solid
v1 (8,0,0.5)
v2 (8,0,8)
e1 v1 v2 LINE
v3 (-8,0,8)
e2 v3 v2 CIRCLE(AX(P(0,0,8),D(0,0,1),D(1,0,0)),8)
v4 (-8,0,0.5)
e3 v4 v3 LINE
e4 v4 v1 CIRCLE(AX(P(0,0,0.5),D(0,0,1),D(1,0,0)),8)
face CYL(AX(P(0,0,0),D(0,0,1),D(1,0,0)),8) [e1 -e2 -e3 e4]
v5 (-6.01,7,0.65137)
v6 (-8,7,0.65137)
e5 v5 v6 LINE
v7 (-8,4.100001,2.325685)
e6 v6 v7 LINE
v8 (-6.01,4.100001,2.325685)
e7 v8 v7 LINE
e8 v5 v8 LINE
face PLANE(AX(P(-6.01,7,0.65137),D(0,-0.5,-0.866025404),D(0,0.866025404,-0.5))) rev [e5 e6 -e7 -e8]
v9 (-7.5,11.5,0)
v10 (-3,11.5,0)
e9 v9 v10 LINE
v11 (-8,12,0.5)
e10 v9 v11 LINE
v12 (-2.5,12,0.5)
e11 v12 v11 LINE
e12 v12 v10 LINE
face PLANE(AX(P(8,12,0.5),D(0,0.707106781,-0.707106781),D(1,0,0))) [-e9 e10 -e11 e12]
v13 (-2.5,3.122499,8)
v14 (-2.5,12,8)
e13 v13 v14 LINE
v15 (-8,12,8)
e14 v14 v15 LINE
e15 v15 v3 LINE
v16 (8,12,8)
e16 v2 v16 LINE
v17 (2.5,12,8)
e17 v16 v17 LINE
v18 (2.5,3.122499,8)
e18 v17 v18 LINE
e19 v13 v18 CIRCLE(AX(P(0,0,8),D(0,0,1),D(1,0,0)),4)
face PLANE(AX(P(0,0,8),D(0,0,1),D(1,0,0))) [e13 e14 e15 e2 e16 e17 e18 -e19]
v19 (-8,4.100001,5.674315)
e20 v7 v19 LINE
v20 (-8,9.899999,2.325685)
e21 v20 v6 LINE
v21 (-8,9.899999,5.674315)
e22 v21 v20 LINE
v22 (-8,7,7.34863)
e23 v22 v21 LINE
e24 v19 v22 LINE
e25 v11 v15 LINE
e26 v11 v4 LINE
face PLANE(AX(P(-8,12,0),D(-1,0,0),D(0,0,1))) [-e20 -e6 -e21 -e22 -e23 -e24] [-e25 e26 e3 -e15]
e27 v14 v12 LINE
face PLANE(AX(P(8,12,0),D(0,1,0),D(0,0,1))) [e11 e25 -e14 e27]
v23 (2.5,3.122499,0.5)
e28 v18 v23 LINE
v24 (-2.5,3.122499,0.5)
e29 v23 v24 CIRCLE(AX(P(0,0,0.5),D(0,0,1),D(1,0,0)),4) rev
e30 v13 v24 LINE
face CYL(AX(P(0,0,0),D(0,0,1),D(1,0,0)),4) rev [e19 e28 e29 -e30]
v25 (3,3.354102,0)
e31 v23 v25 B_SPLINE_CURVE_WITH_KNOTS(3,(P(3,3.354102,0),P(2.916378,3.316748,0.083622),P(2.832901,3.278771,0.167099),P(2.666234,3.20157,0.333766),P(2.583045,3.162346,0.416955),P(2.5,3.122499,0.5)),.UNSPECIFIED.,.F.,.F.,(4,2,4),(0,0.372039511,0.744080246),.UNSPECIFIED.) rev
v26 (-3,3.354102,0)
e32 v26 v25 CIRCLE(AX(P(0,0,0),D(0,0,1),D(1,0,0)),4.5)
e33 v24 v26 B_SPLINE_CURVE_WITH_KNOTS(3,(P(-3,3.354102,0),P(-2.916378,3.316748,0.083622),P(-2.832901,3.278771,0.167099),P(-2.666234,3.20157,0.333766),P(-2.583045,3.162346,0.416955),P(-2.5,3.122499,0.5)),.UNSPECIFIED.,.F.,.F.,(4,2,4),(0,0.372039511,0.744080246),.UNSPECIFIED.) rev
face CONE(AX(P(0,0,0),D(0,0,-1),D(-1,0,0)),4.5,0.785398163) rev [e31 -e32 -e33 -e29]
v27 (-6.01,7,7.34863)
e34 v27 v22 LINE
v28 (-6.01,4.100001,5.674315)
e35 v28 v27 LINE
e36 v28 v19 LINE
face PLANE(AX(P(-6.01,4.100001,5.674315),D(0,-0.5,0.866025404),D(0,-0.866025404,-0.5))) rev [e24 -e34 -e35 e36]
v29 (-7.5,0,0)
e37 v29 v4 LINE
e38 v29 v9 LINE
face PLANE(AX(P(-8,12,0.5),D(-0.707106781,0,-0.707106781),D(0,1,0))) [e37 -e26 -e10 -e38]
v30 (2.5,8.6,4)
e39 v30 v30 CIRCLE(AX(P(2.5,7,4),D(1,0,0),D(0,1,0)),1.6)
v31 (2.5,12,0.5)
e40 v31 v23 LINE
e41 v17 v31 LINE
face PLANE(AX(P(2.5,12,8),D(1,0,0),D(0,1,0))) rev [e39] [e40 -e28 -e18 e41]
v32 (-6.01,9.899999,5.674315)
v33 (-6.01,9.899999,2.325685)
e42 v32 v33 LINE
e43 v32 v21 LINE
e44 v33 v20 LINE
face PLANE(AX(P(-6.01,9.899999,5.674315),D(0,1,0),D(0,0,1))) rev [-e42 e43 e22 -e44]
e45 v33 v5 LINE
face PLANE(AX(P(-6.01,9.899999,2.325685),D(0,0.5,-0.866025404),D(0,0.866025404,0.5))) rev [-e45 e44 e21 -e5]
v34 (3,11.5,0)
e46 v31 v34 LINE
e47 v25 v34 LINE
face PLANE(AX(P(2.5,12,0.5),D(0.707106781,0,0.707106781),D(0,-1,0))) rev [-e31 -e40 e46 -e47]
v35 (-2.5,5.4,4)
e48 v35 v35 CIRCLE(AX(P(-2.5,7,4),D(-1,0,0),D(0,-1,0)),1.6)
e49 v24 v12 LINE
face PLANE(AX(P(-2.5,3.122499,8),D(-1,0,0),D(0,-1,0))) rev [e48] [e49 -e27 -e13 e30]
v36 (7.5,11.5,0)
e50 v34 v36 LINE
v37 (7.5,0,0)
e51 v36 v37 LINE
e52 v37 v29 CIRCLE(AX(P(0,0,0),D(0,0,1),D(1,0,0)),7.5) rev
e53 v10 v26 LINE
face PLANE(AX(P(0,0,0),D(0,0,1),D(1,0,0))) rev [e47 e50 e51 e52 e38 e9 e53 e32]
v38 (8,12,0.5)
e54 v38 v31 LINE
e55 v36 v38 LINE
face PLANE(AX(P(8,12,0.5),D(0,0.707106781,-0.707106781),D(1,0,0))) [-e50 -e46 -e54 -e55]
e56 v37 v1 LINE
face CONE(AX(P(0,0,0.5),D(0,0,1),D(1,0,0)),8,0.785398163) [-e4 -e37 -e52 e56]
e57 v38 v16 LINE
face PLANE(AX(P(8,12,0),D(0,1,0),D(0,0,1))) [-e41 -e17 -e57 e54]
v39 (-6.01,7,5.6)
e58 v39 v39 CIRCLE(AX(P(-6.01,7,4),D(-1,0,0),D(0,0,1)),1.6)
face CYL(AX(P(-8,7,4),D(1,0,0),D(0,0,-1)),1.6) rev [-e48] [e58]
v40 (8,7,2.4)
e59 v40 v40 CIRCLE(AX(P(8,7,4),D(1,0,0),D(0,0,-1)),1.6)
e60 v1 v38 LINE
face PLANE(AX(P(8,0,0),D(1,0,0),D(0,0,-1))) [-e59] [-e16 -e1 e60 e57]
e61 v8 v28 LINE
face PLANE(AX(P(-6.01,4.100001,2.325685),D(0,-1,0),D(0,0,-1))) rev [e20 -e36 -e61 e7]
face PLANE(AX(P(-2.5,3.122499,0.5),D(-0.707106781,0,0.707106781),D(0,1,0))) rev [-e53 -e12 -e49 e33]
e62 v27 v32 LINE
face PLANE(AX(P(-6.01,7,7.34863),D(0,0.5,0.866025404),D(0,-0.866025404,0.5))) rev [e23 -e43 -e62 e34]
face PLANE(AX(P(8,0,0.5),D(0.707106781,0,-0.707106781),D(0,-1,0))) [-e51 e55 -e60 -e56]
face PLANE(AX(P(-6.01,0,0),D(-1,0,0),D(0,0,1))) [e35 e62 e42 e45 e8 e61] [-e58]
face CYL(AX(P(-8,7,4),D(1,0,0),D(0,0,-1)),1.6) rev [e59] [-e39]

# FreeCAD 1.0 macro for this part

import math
import FreeCAD as App
import Part
import Sketcher

V = App.Vector
Q = App.Units.Quantity


def edges_at(feature, points):
    """Names of the edges that pass closest to the given points."""
    edges = feature.Shape.Edges
    near = lambda p: min(range(len(edges)), key=lambda i: edges[i].distToShape(Part.Vertex(*p))[0])
    return sorted({f"Edge{near(p) + 1}" for p in points})

doc = App.newDocument("Part")
body = doc.addObject("PartDesign::Body", "Body")

sketch1 = doc.addObject("Sketcher::SketchObject", "Sketch")
body.addObject(sketch1)
sketch1.AttachmentSupport = (doc.XY_Plane, [""])
sketch1.MapMode = "FlatFace"
sketch1.AttachmentOffset = App.Placement(V(0, 0, 8), App.Rotation())
sketch1.addGeometry(Part.LineSegment(V(8, 0, 0), V(8, 12, 0)), False)
sketch1.addGeometry(Part.LineSegment(V(8, 12, 0), V(-8, 12, 0)), False)
sketch1.addGeometry(Part.LineSegment(V(-8, 12, 0), V(-8, 0, 0)), False)
sketch1.addGeometry(Part.ArcOfCircle(Part.Circle(V(0, 0, 0), V(0, 0, 1), 8), math.radians(180), math.radians(360)), False)
sketch1.addConstraint(Sketcher.Constraint("Coincident", 0, 2, 1, 1))
sketch1.addConstraint(Sketcher.Constraint("Coincident", 1, 2, 2, 1))
sketch1.addConstraint(Sketcher.Constraint("Tangent", 2, 2, 3, 1))
sketch1.addConstraint(Sketcher.Constraint("Tangent", 3, 2, 0, 1))
sketch1.addConstraint(Sketcher.Constraint("Vertical", 0))
sketch1.addConstraint(Sketcher.Constraint("Horizontal", 1))
sketch1.addConstraint(Sketcher.Constraint("Vertical", 2))
sketch1.addConstraint(Sketcher.Constraint("Coincident", 3, 3, -1, 1))
sketch1.addConstraint(Sketcher.Constraint("Radius", 3, 8.0))
sketch1.addConstraint(Sketcher.Constraint("DistanceY", 0, 1, 0, 2, 12.0))
pad1 = doc.addObject("PartDesign::Pad", "Pad")
body.addObject(pad1)
pad1.Profile = sketch1
pad1.Length = 8
pad1.Reversed = True

sketch2 = doc.addObject("Sketcher::SketchObject", "Sketch001")
body.addObject(sketch2)
sketch2.AttachmentSupport = (doc.XY_Plane, [""])
sketch2.MapMode = "FlatFace"
sketch2.addGeometry(Part.LineSegment(V(-2.5, 12, 0), V(2.5, 12, 0)), False)
sketch2.addGeometry(Part.LineSegment(V(2.5, 12, 0), V(2.5, 3.122499, 0)), False)
sketch2.addGeometry(Part.ArcOfCircle(Part.Circle(V(0, 0, 0), V(0, 0, 1), 4), math.radians(51.317813), math.radians(128.682187)), False)
sketch2.addGeometry(Part.LineSegment(V(-2.5, 3.122499, 0), V(-2.5, 12, 0)), False)
sketch2.addConstraint(Sketcher.Constraint("Coincident", 0, 2, 1, 1))
sketch2.addConstraint(Sketcher.Constraint("Coincident", 1, 2, 2, 1))
sketch2.addConstraint(Sketcher.Constraint("Coincident", 2, 2, 3, 1))
sketch2.addConstraint(Sketcher.Constraint("Coincident", 3, 2, 0, 1))
sketch2.addConstraint(Sketcher.Constraint("Horizontal", 0))
sketch2.addConstraint(Sketcher.Constraint("Vertical", 1))
sketch2.addConstraint(Sketcher.Constraint("Vertical", 3))
sketch2.addConstraint(Sketcher.Constraint("Coincident", 2, 3, -1, 1))
sketch2.addConstraint(Sketcher.Constraint("Horizontal", 1, 2, 2, 2))
sketch2.addConstraint(Sketcher.Constraint("Radius", 2, 4.0))
sketch2.addConstraint(Sketcher.Constraint("DistanceX", 0, 1, 0, 2, 5.0))
sketch2.addConstraint(Sketcher.Constraint("DistanceY", -1, 1, 0, 2, 12.0))
pocket1 = doc.addObject("PartDesign::Pocket", "Pocket")
body.addObject(pocket1)
pocket1.Profile = sketch2
pocket1.Type = "ThroughAll"
pocket1.Reversed = True

sketch3 = doc.addObject("Sketcher::SketchObject", "Sketch002")
body.addObject(sketch3)
sketch3.AttachmentSupport = (doc.YZ_Plane, [""])
sketch3.MapMode = "FlatFace"
sketch3.AttachmentOffset = App.Placement(V(0, 0, -8), App.Rotation())
sketch3.addGeometry(Part.LineSegment(V(4.100001, 5.674315, 0), V(7, 7.34863, 0)), False)
sketch3.addGeometry(Part.LineSegment(V(7, 7.34863, 0), V(9.899999, 5.674315, 0)), False)
sketch3.addGeometry(Part.LineSegment(V(9.899999, 5.674315, 0), V(9.899999, 2.325685, 0)), False)
sketch3.addGeometry(Part.LineSegment(V(9.899999, 2.325685, 0), V(7, 0.65137, 0)), False)
sketch3.addGeometry(Part.LineSegment(V(7, 0.65137, 0), V(4.100001, 2.325685, 0)), False)
sketch3.addGeometry(Part.LineSegment(V(4.100001, 2.325685, 0), V(4.100001, 5.674315, 0)), False)
sketch3.addConstraint(Sketcher.Constraint("Coincident", 0, 2, 1, 1))
sketch3.addConstraint(Sketcher.Constraint("Coincident", 1, 2, 2, 1))
sketch3.addConstraint(Sketcher.Constraint("Coincident", 2, 2, 3, 1))
sketch3.addConstraint(Sketcher.Constraint("Coincident", 3, 2, 4, 1))
sketch3.addConstraint(Sketcher.Constraint("Coincident", 4, 2, 5, 1))
sketch3.addConstraint(Sketcher.Constraint("Coincident", 5, 2, 0, 1))
sketch3.addConstraint(Sketcher.Constraint("Vertical", 2))
sketch3.addConstraint(Sketcher.Constraint("Vertical", 5))
sketch3.addConstraint(Sketcher.Constraint("Parallel", 0, 3))
sketch3.addConstraint(Sketcher.Constraint("Parallel", 1, 4))
sketch3.addConstraint(Sketcher.Constraint("Horizontal", 2, 2, 4, 2))
sketch3.addConstraint(Sketcher.Constraint("Horizontal", 1, 2, 5, 2))
sketch3.addConstraint(Sketcher.Constraint("Vertical", 0, 2, 3, 2))
sketch3.addConstraint(Sketcher.Constraint("Angle", 0, Q("30 deg")))
sketch3.addConstraint(Sketcher.Constraint("DistanceX", -1, 1, 0, 2, 7.0))
sketch3.addConstraint(Sketcher.Constraint("DistanceX", -1, 1, 1, 2, 9.899999))
sketch3.addConstraint(Sketcher.Constraint("DistanceY", 2, 2, 2, 1, 3.34863))
sketch3.addConstraint(Sketcher.Constraint("DistanceY", -1, 1, 0, 2, 7.34863))
pocket2 = doc.addObject("PartDesign::Pocket", "Pocket001")
body.addObject(pocket2)
pocket2.Profile = sketch3
pocket2.Length = 1.99
pocket2.Reversed = True

sketch4 = doc.addObject("Sketcher::SketchObject", "Sketch003")
body.addObject(sketch4)
sketch4.AttachmentSupport = (doc.YZ_Plane, [""])
sketch4.MapMode = "FlatFace"
sketch4.AttachmentOffset = App.Placement(V(0, 0, 8), App.Rotation())
sketch4.addGeometry(Part.LineSegment(V(6.111088, 5.330351, 0), V(5.868629, 5.131371, 0)), False)
sketch4.addGeometry(Part.LineSegment(V(5.868629, 5.131371, 0), V(5.669649, 4.888912, 0)), False)
sketch4.addGeometry(Part.LineSegment(V(5.669649, 4.888912, 0), V(5.521793, 4.612293, 0)), False)
sketch4.addGeometry(Part.LineSegment(V(5.521793, 4.612293, 0), V(5.430744, 4.312145, 0)), False)
sketch4.addGeometry(Part.LineSegment(V(5.430744, 4.312145, 0), V(5.4, 4, 0)), False)
sketch4.addGeometry(Part.LineSegment(V(5.4, 4, 0), V(5.430744, 3.687855, 0)), False)
sketch4.addGeometry(Part.LineSegment(V(5.430744, 3.687855, 0), V(5.521793, 3.387707, 0)), False)
sketch4.addGeometry(Part.LineSegment(V(5.521793, 3.387707, 0), V(5.669649, 3.111088, 0)), False)
sketch4.addGeometry(Part.LineSegment(V(5.669649, 3.111088, 0), V(5.868629, 2.868629, 0)), False)
sketch4.addGeometry(Part.LineSegment(V(5.868629, 2.868629, 0), V(6.111088, 2.669649, 0)), False)
sketch4.addGeometry(Part.LineSegment(V(6.111088, 2.669649, 0), V(6.387707, 2.521793, 0)), False)
sketch4.addGeometry(Part.LineSegment(V(6.387707, 2.521793, 0), V(6.687855, 2.430744, 0)), False)
sketch4.addGeometry(Part.LineSegment(V(6.687855, 2.430744, 0), V(7, 2.4, 0)), False)
sketch4.addGeometry(Part.LineSegment(V(7, 2.4, 0), V(7.312145, 2.430744, 0)), False)
sketch4.addGeometry(Part.LineSegment(V(7.312145, 2.430744, 0), V(7.612293, 2.521793, 0)), False)
sketch4.addGeometry(Part.LineSegment(V(7.612293, 2.521793, 0), V(7.888912, 2.669649, 0)), False)
sketch4.addGeometry(Part.LineSegment(V(7.888912, 2.669649, 0), V(8.131371, 2.868629, 0)), False)
sketch4.addGeometry(Part.LineSegment(V(8.131371, 2.868629, 0), V(8.330351, 3.111088, 0)), False)
sketch4.addGeometry(Part.LineSegment(V(8.330351, 3.111088, 0), V(8.478207, 3.387707, 0)), False)
sketch4.addGeometry(Part.LineSegment(V(8.478207, 3.387707, 0), V(8.569256, 3.687855, 0)), False)
sketch4.addGeometry(Part.LineSegment(V(8.569256, 3.687855, 0), V(8.6, 4, 0)), False)
sketch4.addGeometry(Part.LineSegment(V(8.6, 4, 0), V(8.569256, 4.312145, 0)), False)
sketch4.addGeometry(Part.LineSegment(V(8.569256, 4.312145, 0), V(8.478207, 4.612293, 0)), False)
sketch4.addGeometry(Part.LineSegment(V(8.478207, 4.612293, 0), V(8.330351, 4.888912, 0)), False)
sketch4.addGeometry(Part.LineSegment(V(8.330351, 4.888912, 0), V(8.131371, 5.131371, 0)), False)
sketch4.addGeometry(Part.LineSegment(V(8.131371, 5.131371, 0), V(7.888912, 5.330351, 0)), False)
sketch4.addGeometry(Part.LineSegment(V(7.888912, 5.330351, 0), V(7.612293, 5.478207, 0)), False)
sketch4.addGeometry(Part.LineSegment(V(7.612293, 5.478207, 0), V(7.312145, 5.569256, 0)), False)
sketch4.addGeometry(Part.LineSegment(V(7.312145, 5.569256, 0), V(7, 5.6, 0)), False)
sketch4.addGeometry(Part.LineSegment(V(7, 5.6, 0), V(6.687855, 5.569256, 0)), False)
sketch4.addGeometry(Part.LineSegment(V(6.687855, 5.569256, 0), V(6.387707, 5.478207, 0)), False)
sketch4.addGeometry(Part.LineSegment(V(6.387707, 5.478207, 0), V(6.111088, 5.330351, 0)), False)
sketch4.addConstraint(Sketcher.Constraint("Coincident", 0, 2, 1, 1))
sketch4.addConstraint(Sketcher.Constraint("Coincident", 1, 2, 2, 1))
sketch4.addConstraint(Sketcher.Constraint("Coincident", 2, 2, 3, 1))
sketch4.addConstraint(Sketcher.Constraint("Coincident", 3, 2, 4, 1))
sketch4.addConstraint(Sketcher.Constraint("Coincident", 4, 2, 5, 1))
sketch4.addConstraint(Sketcher.Constraint("Coincident", 5, 2, 6, 1))
sketch4.addConstraint(Sketcher.Constraint("Coincident", 6, 2, 7, 1))
sketch4.addConstraint(Sketcher.Constraint("Coincident", 7, 2, 8, 1))
sketch4.addConstraint(Sketcher.Constraint("Coincident", 8, 2, 9, 1))
sketch4.addConstraint(Sketcher.Constraint("Coincident", 9, 2, 10, 1))
sketch4.addConstraint(Sketcher.Constraint("Coincident", 10, 2, 11, 1))
sketch4.addConstraint(Sketcher.Constraint("Coincident", 11, 2, 12, 1))
sketch4.addConstraint(Sketcher.Constraint("Coincident", 12, 2, 13, 1))
sketch4.addConstraint(Sketcher.Constraint("Coincident", 13, 2, 14, 1))
sketch4.addConstraint(Sketcher.Constraint("Coincident", 14, 2, 15, 1))
sketch4.addConstraint(Sketcher.Constraint("Coincident", 15, 2, 16, 1))
sketch4.addConstraint(Sketcher.Constraint("Coincident", 16, 2, 17, 1))
sketch4.addConstraint(Sketcher.Constraint("Coincident", 17, 2, 18, 1))
sketch4.addConstraint(Sketcher.Constraint("Coincident", 18, 2, 19, 1))
sketch4.addConstraint(Sketcher.Constraint("Coincident", 19, 2, 20, 1))
sketch4.addConstraint(Sketcher.Constraint("Coincident", 20, 2, 21, 1))
sketch4.addConstraint(Sketcher.Constraint("Coincident", 21, 2, 22, 1))
sketch4.addConstraint(Sketcher.Constraint("Coincident", 22, 2, 23, 1))
sketch4.addConstraint(Sketcher.Constraint("Coincident", 23, 2, 24, 1))
sketch4.addConstraint(Sketcher.Constraint("Coincident", 24, 2, 25, 1))
sketch4.addConstraint(Sketcher.Constraint("Coincident", 25, 2, 26, 1))
sketch4.addConstraint(Sketcher.Constraint("Coincident", 26, 2, 27, 1))
sketch4.addConstraint(Sketcher.Constraint("Coincident", 27, 2, 28, 1))
sketch4.addConstraint(Sketcher.Constraint("Coincident", 28, 2, 29, 1))
sketch4.addConstraint(Sketcher.Constraint("Coincident", 29, 2, 30, 1))
sketch4.addConstraint(Sketcher.Constraint("Coincident", 30, 2, 31, 1))
sketch4.addConstraint(Sketcher.Constraint("Coincident", 31, 2, 0, 1))
sketch4.addConstraint(Sketcher.Constraint("Perpendicular", 0, 8))
sketch4.addConstraint(Sketcher.Constraint("Perpendicular", 1, 9))
sketch4.addConstraint(Sketcher.Constraint("Perpendicular", 2, 10))
sketch4.addConstraint(Sketcher.Constraint("Perpendicular", 3, 11))
sketch4.addConstraint(Sketcher.Constraint("Perpendicular", 4, 12))
sketch4.addConstraint(Sketcher.Constraint("Perpendicular", 5, 13))
sketch4.addConstraint(Sketcher.Constraint("Perpendicular", 6, 14))
sketch4.addConstraint(Sketcher.Constraint("Perpendicular", 7, 15))
sketch4.addConstraint(Sketcher.Constraint("Perpendicular", 8, 16))
sketch4.addConstraint(Sketcher.Constraint("Perpendicular", 9, 17))
sketch4.addConstraint(Sketcher.Constraint("Perpendicular", 10, 18))
sketch4.addConstraint(Sketcher.Constraint("Perpendicular", 11, 19))
sketch4.addConstraint(Sketcher.Constraint("Perpendicular", 12, 20))
sketch4.addConstraint(Sketcher.Constraint("Perpendicular", 13, 21))
sketch4.addConstraint(Sketcher.Constraint("Perpendicular", 14, 22))
sketch4.addConstraint(Sketcher.Constraint("Perpendicular", 15, 23))
sketch4.addConstraint(Sketcher.Constraint("Perpendicular", 16, 24))
sketch4.addConstraint(Sketcher.Constraint("Perpendicular", 17, 25))
sketch4.addConstraint(Sketcher.Constraint("Perpendicular", 18, 26))
sketch4.addConstraint(Sketcher.Constraint("Perpendicular", 19, 27))
sketch4.addConstraint(Sketcher.Constraint("Perpendicular", 20, 28))
sketch4.addConstraint(Sketcher.Constraint("Perpendicular", 21, 29))
sketch4.addConstraint(Sketcher.Constraint("Perpendicular", 22, 30))
sketch4.addConstraint(Sketcher.Constraint("Perpendicular", 23, 31))
sketch4.addConstraint(Sketcher.Constraint("Horizontal", 11, 2, 13, 2))
sketch4.addConstraint(Sketcher.Constraint("Horizontal", 10, 2, 14, 2))
sketch4.addConstraint(Sketcher.Constraint("Horizontal", 9, 2, 15, 2))
sketch4.addConstraint(Sketcher.Constraint("Horizontal", 8, 2, 16, 2))
sketch4.addConstraint(Sketcher.Constraint("Horizontal", 7, 2, 17, 2))
sketch4.addConstraint(Sketcher.Constraint("Horizontal", 6, 2, 18, 2))
sketch4.addConstraint(Sketcher.Constraint("Horizontal", 5, 2, 19, 2))
sketch4.addConstraint(Sketcher.Constraint("Horizontal", 4, 2, 20, 2))
sketch4.addConstraint(Sketcher.Constraint("Horizontal", 3, 2, 21, 2))
sketch4.addConstraint(Sketcher.Constraint("Horizontal", 2, 2, 22, 2))
sketch4.addConstraint(Sketcher.Constraint("Horizontal", 1, 2, 23, 2))
sketch4.addConstraint(Sketcher.Constraint("Horizontal", 0, 2, 24, 2))
sketch4.addConstraint(Sketcher.Constraint("Horizontal", 27, 2, 29, 2))
sketch4.addConstraint(Sketcher.Constraint("Horizontal", 26, 2, 30, 2))
sketch4.addConstraint(Sketcher.Constraint("Horizontal", 25, 2, 31, 2))
sketch4.addConstraint(Sketcher.Constraint("Vertical", 3, 2, 5, 2))
sketch4.addConstraint(Sketcher.Constraint("Vertical", 2, 2, 6, 2))
sketch4.addConstraint(Sketcher.Constraint("Vertical", 1, 2, 7, 2))
sketch4.addConstraint(Sketcher.Constraint("Vertical", 0, 2, 8, 2))
sketch4.addConstraint(Sketcher.Constraint("Vertical", 19, 2, 21, 2))
sketch4.addConstraint(Sketcher.Constraint("Vertical", 18, 2, 22, 2))
sketch4.addConstraint(Sketcher.Constraint("Vertical", 17, 2, 23, 2))
sketch4.addConstraint(Sketcher.Constraint("Vertical", 16, 2, 24, 2))
sketch4.addConstraint(Sketcher.Constraint("Vertical", 15, 2, 25, 2))
sketch4.addConstraint(Sketcher.Constraint("Vertical", 14, 2, 26, 2))
sketch4.addConstraint(Sketcher.Constraint("Vertical", 13, 2, 27, 2))
sketch4.addConstraint(Sketcher.Constraint("Equal", 0, 1))
sketch4.addConstraint(Sketcher.Constraint("Equal", 1, 2))
sketch4.addConstraint(Sketcher.Constraint("Equal", 2, 3))
sketch4.addConstraint(Sketcher.Constraint("Equal", 3, 4))
sketch4.addConstraint(Sketcher.Constraint("Equal", 9, 10))
sketch4.addConstraint(Sketcher.Constraint("Equal", 10, 11))
sketch4.addConstraint(Sketcher.Constraint("Equal", 11, 12))
sketch4.addConstraint(Sketcher.Constraint("DistanceY", -1, 1, 4, 2, 4.0))
sketch4.addConstraint(Sketcher.Constraint("DistanceX", -1, 1, 12, 2, 7.0))
sketch4.addConstraint(Sketcher.Constraint("DistanceX", -1, 1, 4, 2, 5.4))
sketch4.addConstraint(Sketcher.Constraint("DistanceX", -1, 1, 0, 2, 5.868629))
sketch4.addConstraint(Sketcher.Constraint("DistanceX", -1, 1, 1, 2, 5.669649))
sketch4.addConstraint(Sketcher.Constraint("DistanceY", 1, 2, 0, 2, 0.242458))
sketch4.addConstraint(Sketcher.Constraint("DistanceY", 2, 2, 1, 2, 0.276619))
pocket3 = doc.addObject("PartDesign::Pocket", "Pocket002")
body.addObject(pocket3)
pocket3.Profile = sketch4
pocket3.Type = "UpToFirst"

sketch5 = doc.addObject("Sketcher::SketchObject", "Sketch004")
body.addObject(sketch5)
sketch5.AttachmentSupport = (doc.XZ_Plane, [""])
sketch5.MapMode = "FlatFace"
sketch5.addGeometry(Part.LineSegment(V(0, 0, 0), V(0, 8, 0)), False)
sketch5.addGeometry(Part.LineSegment(V(0, 8, 0), V(4, 8, 0)), False)
sketch5.addGeometry(Part.LineSegment(V(4, 8, 0), V(4, 0, 0)), False)
sketch5.addGeometry(Part.LineSegment(V(4, 0, 0), V(0, 0, 0)), False)
sketch5.addConstraint(Sketcher.Constraint("Coincident", 0, 2, 1, 1))
sketch5.addConstraint(Sketcher.Constraint("Coincident", 1, 2, 2, 1))
sketch5.addConstraint(Sketcher.Constraint("Coincident", 2, 2, 3, 1))
sketch5.addConstraint(Sketcher.Constraint("Coincident", 3, 2, 0, 1))
sketch5.addConstraint(Sketcher.Constraint("Vertical", 0))
sketch5.addConstraint(Sketcher.Constraint("Horizontal", 1))
sketch5.addConstraint(Sketcher.Constraint("Vertical", 2))
sketch5.addConstraint(Sketcher.Constraint("Horizontal", 3))
sketch5.addConstraint(Sketcher.Constraint("Coincident", 3, 2, -1, 1))
sketch5.addConstraint(Sketcher.Constraint("DistanceX", 1, 1, 1, 2, 4.0))
sketch5.addConstraint(Sketcher.Constraint("DistanceY", 0, 1, 0, 2, 8.0))
groove = doc.addObject("PartDesign::Groove", "Groove")
body.addObject(groove)
groove.Profile = sketch5
groove.ReferenceAxis = (sketch5, ["V_Axis"])
groove.Angle = 360

sketch6 = doc.addObject("Sketcher::SketchObject", "Sketch005")
body.addObject(sketch6)
sketch6.AttachmentSupport = (doc.YZ_Plane, [""])
sketch6.MapMode = "FlatFace"
sketch6.AttachmentOffset = App.Placement(V(0, 0, 8), App.Rotation())
sketch6.addGeometry(Part.Circle(V(7, 4, 0), V(0, 0, 1), 1.6), False)
sketch6.addConstraint(Sketcher.Constraint("Diameter", 0, 3.2))
sketch6.addConstraint(Sketcher.Constraint("DistanceX", -1, 1, 0, 3, 7.0))
sketch6.addConstraint(Sketcher.Constraint("DistanceY", -1, 1, 0, 3, 4.0))
pocket4 = doc.addObject("PartDesign::Pocket", "Pocket003")
body.addObject(pocket4)
pocket4.Profile = sketch6
pocket4.Type = "ThroughAll"
doc.recompute()

chamfer = doc.addObject("PartDesign::Chamfer", "Chamfer")
body.addObject(chamfer)
chamfer.Base = (pocket4, edges_at(pocket4, [
    (5.25, 12, 0),
    (-8, 6, 0),
    (0, -4, 0),
    (-5.25, 12, 0),
    (-2.5, 7.561, 0),
    (2.5, 7.561, 0),
    (0, -8, 0),
    (8, 6, 0),
]))
chamfer.Size = 0.5

doc.recompute()
